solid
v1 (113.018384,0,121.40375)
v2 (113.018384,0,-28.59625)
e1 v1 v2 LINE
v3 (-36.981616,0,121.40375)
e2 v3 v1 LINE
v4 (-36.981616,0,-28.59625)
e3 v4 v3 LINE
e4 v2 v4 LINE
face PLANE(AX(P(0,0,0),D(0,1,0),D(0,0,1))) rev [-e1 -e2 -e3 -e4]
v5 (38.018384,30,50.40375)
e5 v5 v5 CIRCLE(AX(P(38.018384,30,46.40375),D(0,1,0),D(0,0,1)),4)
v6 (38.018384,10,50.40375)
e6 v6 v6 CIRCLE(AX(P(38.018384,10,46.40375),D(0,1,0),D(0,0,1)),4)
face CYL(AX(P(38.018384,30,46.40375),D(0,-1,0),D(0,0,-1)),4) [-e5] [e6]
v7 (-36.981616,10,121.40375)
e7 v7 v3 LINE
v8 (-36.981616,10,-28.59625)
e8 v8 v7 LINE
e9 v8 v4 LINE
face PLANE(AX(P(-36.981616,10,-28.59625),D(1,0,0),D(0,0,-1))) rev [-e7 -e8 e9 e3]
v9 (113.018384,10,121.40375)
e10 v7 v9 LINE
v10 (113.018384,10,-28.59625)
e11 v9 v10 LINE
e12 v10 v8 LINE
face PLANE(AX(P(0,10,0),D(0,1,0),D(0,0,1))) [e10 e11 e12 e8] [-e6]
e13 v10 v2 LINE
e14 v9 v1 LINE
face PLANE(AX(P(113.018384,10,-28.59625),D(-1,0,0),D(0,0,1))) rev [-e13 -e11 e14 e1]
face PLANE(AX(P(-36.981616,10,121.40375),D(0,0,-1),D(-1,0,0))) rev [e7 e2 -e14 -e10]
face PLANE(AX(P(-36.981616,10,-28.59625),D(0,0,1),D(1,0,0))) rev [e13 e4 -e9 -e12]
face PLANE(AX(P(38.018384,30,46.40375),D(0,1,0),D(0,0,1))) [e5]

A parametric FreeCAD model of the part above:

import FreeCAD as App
import Part
import Sketcher

V = App.Vector


def add_polygon(sketch, points):
    """Adds a closed chain of lines whose ends are joined by coincident constraints."""
    first, n = sketch.GeometryCount, len(points)
    for a, b in zip(points, points[1:] + points[:1]):
        sketch.addGeometry(Part.LineSegment(App.Vector(*a, 0), App.Vector(*b, 0)), False)
    for i in range(n):
        sketch.addConstraint(Sketcher.Constraint("Coincident", first + i, 2, first + (i + 1) % n, 1))

doc = App.newDocument("Part")
body = doc.addObject("PartDesign::Body", "Body")

# Sketch on XZ plane
sketch1 = body.newObject("Sketcher::SketchObject", "Sketch")
sketch1.AttachmentSupport = (doc.getObject("XZ_Plane"), [""])
sketch1.MapMode = "FlatFace"
add_polygon(sketch1, [(-37, -29), (-37, 121), (113, 121), (113, -29)])  # lines 0-3
sketch1.addConstraint([
    Sketcher.Constraint("Vertical", 0),
    Sketcher.Constraint("Horizontal", 1),
    Sketcher.Constraint("Vertical", 2),
    Sketcher.Constraint("Horizontal", 3),
    Sketcher.Constraint("Equal", 3, 0),
    Sketcher.Constraint("DistanceX", 1, 1, 1, 2, 150.0),
    Sketcher.Constraint("DistanceY", -1, 1, 0, 2, 121.40375),
    Sketcher.Constraint("DistanceX", 0, 2, -1, 1, 36.981616),
])
pad1 = body.newObject("PartDesign::Pad", "Pad")
pad1.Profile = sketch1
pad1.Length = 10
pad1.Reversed = True

# Sketch on XZ plane
sketch2 = body.newObject("Sketcher::SketchObject", "Sketch001")
sketch2.AttachmentSupport = (doc.getObject("XZ_Plane"), [""])
sketch2.MapMode = "FlatFace"
sketch2.AttachmentOffset = App.Placement(V(0, 0, -10), App.Rotation())
sketch2.addGeometry(Part.Circle(V(38, 46.4, 0), V(0, 0, 1), 4), False)
sketch2.addConstraint([
    Sketcher.Constraint("Diameter", 0, 8.0),
    Sketcher.Constraint("DistanceY", -1, 1, 0, 3, 46.40375),
    Sketcher.Constraint("DistanceX", -1, 1, 0, 3, 38.018384),
])
pad2 = body.newObject("PartDesign::Pad", "Pad001")
pad2.Profile = sketch2
pad2.Length = 20
pad2.Reversed = True

doc.recompute()
